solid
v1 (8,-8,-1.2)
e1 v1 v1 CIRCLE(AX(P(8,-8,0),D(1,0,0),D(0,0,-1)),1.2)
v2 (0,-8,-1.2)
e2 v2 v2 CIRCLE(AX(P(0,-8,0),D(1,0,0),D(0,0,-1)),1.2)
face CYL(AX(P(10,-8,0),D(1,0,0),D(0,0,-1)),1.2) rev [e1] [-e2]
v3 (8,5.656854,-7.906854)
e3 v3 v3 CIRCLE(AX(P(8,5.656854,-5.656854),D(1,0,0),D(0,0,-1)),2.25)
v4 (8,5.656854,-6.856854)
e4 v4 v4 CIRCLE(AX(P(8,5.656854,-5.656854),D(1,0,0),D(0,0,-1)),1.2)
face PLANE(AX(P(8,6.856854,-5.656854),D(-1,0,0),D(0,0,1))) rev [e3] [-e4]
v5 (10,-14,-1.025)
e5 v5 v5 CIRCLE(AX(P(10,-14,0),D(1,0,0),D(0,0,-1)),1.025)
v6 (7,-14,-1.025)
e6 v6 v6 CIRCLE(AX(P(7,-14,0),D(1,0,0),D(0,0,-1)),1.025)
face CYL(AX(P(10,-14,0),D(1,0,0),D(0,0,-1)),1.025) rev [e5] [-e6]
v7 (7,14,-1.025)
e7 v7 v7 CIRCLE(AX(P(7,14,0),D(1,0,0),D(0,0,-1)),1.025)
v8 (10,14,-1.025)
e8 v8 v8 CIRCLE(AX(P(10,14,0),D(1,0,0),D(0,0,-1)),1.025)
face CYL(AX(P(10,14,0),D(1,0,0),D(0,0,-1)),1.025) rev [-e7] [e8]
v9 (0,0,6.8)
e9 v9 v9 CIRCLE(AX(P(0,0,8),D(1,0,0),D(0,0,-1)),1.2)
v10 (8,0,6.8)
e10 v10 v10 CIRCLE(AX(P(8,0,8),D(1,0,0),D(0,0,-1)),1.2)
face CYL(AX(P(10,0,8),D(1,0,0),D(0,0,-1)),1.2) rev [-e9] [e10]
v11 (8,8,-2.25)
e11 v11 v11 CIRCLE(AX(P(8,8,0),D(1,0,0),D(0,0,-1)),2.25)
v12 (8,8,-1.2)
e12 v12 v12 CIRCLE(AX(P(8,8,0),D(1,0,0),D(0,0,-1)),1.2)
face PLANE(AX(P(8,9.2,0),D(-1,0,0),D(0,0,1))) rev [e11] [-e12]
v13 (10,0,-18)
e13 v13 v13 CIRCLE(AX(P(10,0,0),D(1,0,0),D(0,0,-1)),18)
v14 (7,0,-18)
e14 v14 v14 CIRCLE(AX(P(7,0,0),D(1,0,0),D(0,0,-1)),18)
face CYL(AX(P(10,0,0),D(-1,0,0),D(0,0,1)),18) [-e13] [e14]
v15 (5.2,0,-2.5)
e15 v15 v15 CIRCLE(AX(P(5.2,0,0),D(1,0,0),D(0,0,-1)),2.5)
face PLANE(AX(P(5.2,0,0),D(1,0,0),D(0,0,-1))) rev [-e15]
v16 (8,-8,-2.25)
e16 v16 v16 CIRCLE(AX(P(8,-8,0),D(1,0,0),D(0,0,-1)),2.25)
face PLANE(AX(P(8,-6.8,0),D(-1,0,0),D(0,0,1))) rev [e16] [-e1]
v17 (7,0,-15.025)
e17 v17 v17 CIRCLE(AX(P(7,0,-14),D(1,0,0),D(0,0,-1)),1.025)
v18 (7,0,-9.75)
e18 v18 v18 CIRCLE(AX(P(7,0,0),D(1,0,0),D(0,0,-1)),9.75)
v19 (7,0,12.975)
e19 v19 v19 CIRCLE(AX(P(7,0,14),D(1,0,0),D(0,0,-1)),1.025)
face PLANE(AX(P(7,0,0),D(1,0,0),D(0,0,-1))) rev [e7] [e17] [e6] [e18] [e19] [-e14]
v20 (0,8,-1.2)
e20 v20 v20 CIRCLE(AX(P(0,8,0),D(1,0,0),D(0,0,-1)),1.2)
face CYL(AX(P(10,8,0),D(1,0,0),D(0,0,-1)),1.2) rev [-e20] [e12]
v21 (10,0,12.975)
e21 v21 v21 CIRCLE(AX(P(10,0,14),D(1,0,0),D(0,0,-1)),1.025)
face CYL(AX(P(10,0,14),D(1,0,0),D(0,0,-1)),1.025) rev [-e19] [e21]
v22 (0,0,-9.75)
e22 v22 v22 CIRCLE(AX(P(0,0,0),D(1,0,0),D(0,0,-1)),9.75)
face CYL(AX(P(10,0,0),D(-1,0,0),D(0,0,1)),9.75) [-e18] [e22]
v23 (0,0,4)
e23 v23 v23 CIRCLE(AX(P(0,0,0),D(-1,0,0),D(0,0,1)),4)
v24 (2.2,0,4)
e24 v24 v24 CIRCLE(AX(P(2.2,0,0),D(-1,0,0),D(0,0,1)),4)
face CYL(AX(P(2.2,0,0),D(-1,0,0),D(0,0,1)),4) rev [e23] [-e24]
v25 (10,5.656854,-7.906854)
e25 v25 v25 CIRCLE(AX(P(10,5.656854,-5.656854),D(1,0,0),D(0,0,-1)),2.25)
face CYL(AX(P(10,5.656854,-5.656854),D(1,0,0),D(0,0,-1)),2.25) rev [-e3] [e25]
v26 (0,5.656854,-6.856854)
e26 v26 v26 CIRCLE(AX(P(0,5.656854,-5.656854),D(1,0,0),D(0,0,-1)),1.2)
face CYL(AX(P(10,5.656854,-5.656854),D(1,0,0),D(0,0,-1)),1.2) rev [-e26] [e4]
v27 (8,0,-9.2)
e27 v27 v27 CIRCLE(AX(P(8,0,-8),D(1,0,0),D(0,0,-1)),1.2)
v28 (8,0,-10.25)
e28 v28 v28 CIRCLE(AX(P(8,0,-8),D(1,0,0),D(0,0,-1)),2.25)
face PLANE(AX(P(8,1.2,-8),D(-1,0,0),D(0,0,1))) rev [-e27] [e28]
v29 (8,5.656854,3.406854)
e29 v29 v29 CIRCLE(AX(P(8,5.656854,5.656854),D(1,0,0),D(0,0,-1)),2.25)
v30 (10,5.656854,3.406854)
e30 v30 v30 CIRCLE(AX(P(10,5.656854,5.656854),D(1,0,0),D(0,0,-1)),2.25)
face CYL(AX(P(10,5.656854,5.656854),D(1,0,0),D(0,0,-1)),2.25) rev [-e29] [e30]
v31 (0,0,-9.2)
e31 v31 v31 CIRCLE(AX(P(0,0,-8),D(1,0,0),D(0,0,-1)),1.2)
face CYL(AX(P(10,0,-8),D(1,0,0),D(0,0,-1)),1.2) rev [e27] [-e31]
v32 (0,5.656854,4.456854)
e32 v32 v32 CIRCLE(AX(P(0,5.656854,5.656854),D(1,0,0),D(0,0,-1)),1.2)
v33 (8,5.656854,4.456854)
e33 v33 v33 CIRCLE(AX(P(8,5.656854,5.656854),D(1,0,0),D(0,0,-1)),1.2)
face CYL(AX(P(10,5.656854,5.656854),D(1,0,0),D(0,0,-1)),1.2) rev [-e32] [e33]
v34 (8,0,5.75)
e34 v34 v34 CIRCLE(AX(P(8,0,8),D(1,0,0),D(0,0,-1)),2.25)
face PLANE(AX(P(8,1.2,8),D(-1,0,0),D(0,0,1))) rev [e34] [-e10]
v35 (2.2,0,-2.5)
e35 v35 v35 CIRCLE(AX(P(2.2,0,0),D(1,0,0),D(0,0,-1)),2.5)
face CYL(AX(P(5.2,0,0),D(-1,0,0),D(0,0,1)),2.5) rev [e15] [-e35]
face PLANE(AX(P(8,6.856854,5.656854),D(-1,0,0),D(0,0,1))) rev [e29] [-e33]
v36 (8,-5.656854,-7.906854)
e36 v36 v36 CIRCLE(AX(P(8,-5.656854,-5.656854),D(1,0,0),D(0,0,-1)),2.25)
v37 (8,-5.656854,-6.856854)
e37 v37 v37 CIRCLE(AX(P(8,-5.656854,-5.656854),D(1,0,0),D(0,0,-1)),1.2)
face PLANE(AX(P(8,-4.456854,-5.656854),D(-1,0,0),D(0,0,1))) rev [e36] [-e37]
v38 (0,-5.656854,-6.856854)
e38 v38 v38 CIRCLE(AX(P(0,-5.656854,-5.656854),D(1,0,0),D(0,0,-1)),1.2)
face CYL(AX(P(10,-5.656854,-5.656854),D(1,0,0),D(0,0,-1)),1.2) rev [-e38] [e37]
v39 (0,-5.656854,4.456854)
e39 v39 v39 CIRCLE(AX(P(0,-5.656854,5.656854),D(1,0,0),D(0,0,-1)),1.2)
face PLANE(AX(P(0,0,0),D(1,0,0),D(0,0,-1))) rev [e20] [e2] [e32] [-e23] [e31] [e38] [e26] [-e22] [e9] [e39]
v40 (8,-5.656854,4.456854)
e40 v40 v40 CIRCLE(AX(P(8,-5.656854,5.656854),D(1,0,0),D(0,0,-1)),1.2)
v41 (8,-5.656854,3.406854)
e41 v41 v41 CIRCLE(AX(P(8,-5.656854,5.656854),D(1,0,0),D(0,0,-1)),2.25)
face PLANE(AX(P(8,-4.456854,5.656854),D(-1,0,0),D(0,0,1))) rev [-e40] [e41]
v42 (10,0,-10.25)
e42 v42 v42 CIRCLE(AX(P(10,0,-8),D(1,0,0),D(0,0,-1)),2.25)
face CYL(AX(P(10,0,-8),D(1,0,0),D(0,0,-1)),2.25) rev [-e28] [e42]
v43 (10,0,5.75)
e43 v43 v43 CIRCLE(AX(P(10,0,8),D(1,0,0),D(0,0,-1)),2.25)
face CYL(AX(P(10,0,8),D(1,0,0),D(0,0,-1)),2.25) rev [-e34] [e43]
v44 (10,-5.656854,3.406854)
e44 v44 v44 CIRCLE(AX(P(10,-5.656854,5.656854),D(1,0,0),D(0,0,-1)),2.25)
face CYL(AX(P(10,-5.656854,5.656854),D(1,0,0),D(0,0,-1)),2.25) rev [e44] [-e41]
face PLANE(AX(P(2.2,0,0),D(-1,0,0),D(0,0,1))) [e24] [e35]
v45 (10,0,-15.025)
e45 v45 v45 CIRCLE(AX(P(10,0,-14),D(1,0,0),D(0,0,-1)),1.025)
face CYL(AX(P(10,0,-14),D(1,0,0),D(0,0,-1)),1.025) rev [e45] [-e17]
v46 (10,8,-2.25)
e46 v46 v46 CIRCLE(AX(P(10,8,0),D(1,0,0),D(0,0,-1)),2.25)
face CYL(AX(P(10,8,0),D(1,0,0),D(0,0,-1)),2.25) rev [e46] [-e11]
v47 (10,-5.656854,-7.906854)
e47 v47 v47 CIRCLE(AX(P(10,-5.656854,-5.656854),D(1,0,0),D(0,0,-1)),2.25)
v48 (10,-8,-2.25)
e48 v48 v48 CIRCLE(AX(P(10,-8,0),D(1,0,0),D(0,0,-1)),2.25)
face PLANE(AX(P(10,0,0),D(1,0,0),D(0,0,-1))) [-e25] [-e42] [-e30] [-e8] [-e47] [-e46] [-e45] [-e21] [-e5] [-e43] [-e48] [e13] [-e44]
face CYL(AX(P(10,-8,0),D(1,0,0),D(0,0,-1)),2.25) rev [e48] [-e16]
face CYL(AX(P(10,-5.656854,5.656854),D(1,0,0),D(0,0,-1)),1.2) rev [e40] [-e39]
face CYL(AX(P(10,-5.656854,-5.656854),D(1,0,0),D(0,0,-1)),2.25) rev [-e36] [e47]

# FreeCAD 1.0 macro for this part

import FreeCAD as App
import Part
import Sketcher

V = App.Vector
Q = App.Units.Quantity

doc = App.newDocument("Part")
body = doc.addObject("PartDesign::Body", "Body")

# Sketch on YZ plane
sketch1 = body.newObject("Sketcher::SketchObject", "Sketch")
sketch1.AttachmentSupport = (doc.getObject("YZ_Plane"), [""])
sketch1.MapMode = "FlatFace"
sketch1.addGeometry(Part.Circle(V(0, 0, 0), V(0, 0, 1), 10), False)
sketch1.addConstraint(Sketcher.Constraint("Coincident", 0, 3, -1, 1))
sketch1.addConstraint(Sketcher.Constraint("Diameter", 0, Q("19.5 mm")))
pad1 = body.newObject("PartDesign::Pad", "Pad")
pad1.Profile = sketch1
pad1.Length = 10

# Sketch on YZ plane
sketch2 = body.newObject("Sketcher::SketchObject", "Sketch001")
sketch2.AttachmentSupport = (doc.getObject("YZ_Plane"), [""])
sketch2.MapMode = "FlatFace"
sketch2.AttachmentOffset = App.Placement(V(0, 0, 7), App.Rotation())
sketch2.addGeometry(Part.Circle(V(0, 0, 0), V(0, 0, 1), 18), False)
sketch2.addConstraint(Sketcher.Constraint("Coincident", 0, 3, -1, 1))
sketch2.addConstraint(Sketcher.Constraint("Diameter", 0, Q("36 mm")))
pad2 = body.newObject("PartDesign::Pad", "Pad001")
pad2.Profile = sketch2
pad2.Length = 3

# Sketch on YZ plane
sketch3 = body.newObject("Sketcher::SketchObject", "Sketch002")
sketch3.AttachmentSupport = (doc.getObject("YZ_Plane"), [""])
sketch3.MapMode = "FlatFace"
sketch3.AttachmentOffset = App.Placement(V(0, 0, 10), App.Rotation())
sketch3.addGeometry(Part.Circle(V(8, 0, 0), V(0, 0, 1), 1.2), False)
sketch3.addGeometry(Part.Circle(V(5.7, -5.7, 0), V(0, 0, 1), 1.2), False)
sketch3.addGeometry(Part.Circle(V(0, -8, 0), V(0, 0, 1), 1.2), False)
sketch3.addGeometry(Part.Circle(V(-5.7, -5.7, 0), V(0, 0, 1), 1.2), False)
sketch3.addGeometry(Part.Circle(V(-8, 0, 0), V(0, 0, 1), 1.2), False)
sketch3.addGeometry(Part.Circle(V(-5.7, 5.7, 0), V(0, 0, 1), 1.2), False)
sketch3.addGeometry(Part.Circle(V(0, 8, 0), V(0, 0, 1), 1.2), False)
sketch3.addGeometry(Part.Circle(V(5.7, 5.7, 0), V(0, 0, 1), 1.2), False)
sketch3.addConstraint(Sketcher.Constraint("Equal", 0, 1))
sketch3.addConstraint(Sketcher.Constraint("Equal", 1, 2))
sketch3.addConstraint(Sketcher.Constraint("Equal", 2, 3))
sketch3.addConstraint(Sketcher.Constraint("Equal", 3, 4))
sketch3.addConstraint(Sketcher.Constraint("Equal", 4, 5))
sketch3.addConstraint(Sketcher.Constraint("Equal", 5, 6))
sketch3.addConstraint(Sketcher.Constraint("Equal", 6, 7))
sketch3.addConstraint(Sketcher.Constraint("Symmetric", 0, 3, 4, 3, -1, 1))
sketch3.addConstraint(Sketcher.Constraint("Symmetric", 1, 3, 5, 3, -1, 1))
sketch3.addConstraint(Sketcher.Constraint("Symmetric", 2, 3, 6, 3, -1, 1))
sketch3.addConstraint(Sketcher.Constraint("Symmetric", 3, 3, 7, 3, -1, 1))
sketch3.addConstraint(Sketcher.Constraint("Symmetric", 1, 3, 3, 3, -2))
sketch3.addConstraint(Sketcher.Constraint("PointOnObject", 0, 3, -1))
sketch3.addConstraint(Sketcher.Constraint("PointOnObject", 2, 3, -2))
sketch3.addConstraint(Sketcher.Constraint("Diameter", 0, Q("2.4 mm")))
sketch3.addConstraint(Sketcher.Constraint("DistanceX", -1, 1, 0, 3, Q("8 mm")))
sketch3.addConstraint(Sketcher.Constraint("DistanceY", 2, 3, -1, 1, Q("8 mm")))
sketch3.addConstraint(Sketcher.Constraint("DistanceX", 3, 3, 1, 3, Q("11.313708 mm")))
sketch3.addConstraint(Sketcher.Constraint("DistanceY", 3, 3, 5, 3, Q("11.313708 mm")))
doc.recompute()
hole = body.newObject("PartDesign::Hole", "Hole")
hole.Profile = sketch3
hole.ThreadType = "None"
hole.Diameter = 2.4
hole.DepthType = "ThroughAll"
hole.HoleCutType = "Counterbore"
hole.HoleCutDiameter = 4.5
hole.HoleCutDepth = 2

# Sketch on YZ plane
sketch4 = body.newObject("Sketcher::SketchObject", "Sketch003")
sketch4.AttachmentSupport = (doc.getObject("YZ_Plane"), [""])
sketch4.MapMode = "FlatFace"
sketch4.addGeometry(Part.Circle(V(0, 0, 0), V(0, 0, 1), 4), False)
sketch4.addConstraint(Sketcher.Constraint("Coincident", 0, 3, -1, 1))
sketch4.addConstraint(Sketcher.Constraint("Diameter", 0, Q("8 mm")))
pocket1 = body.newObject("PartDesign::Pocket", "Pocket")
pocket1.Profile = sketch4
pocket1.Length = 2.2
pocket1.Reversed = True

# Sketch on YZ plane
sketch5 = body.newObject("Sketcher::SketchObject", "Sketch004")
sketch5.AttachmentSupport = (doc.getObject("YZ_Plane"), [""])
sketch5.MapMode = "FlatFace"
sketch5.AttachmentOffset = App.Placement(V(0, 0, 10), App.Rotation())
sketch5.addGeometry(Part.Circle(V(14, 0, 0), V(0, 0, 1), 1), False)
sketch5.addGeometry(Part.Circle(V(0, -14, 0), V(0, 0, 1), 1), False)
sketch5.addGeometry(Part.Circle(V(-14, 0, 0), V(0, 0, 1), 1), False)
sketch5.addGeometry(Part.Circle(V(0, 14, 0), V(0, 0, 1), 1), False)
sketch5.addConstraint(Sketcher.Constraint("Equal", 0, 1))
sketch5.addConstraint(Sketcher.Constraint("Equal", 1, 2))
sketch5.addConstraint(Sketcher.Constraint("Equal", 2, 3))
sketch5.addConstraint(Sketcher.Constraint("Symmetric", 0, 3, 2, 3, -1, 1))
sketch5.addConstraint(Sketcher.Constraint("Symmetric", 1, 3, 3, 3, -1, 1))
sketch5.addConstraint(Sketcher.Constraint("PointOnObject", 0, 3, -1))
sketch5.addConstraint(Sketcher.Constraint("PointOnObject", 1, 3, -2))
sketch5.addConstraint(Sketcher.Constraint("Diameter", 0, Q("2.05 mm")))
sketch5.addConstraint(Sketcher.Constraint("DistanceX", -1, 1, 0, 3, Q("14 mm")))
sketch5.addConstraint(Sketcher.Constraint("DistanceY", 1, 3, -1, 1, Q("14 mm")))
doc.recompute()
hole2 = body.newObject("PartDesign::Hole", "Hole001")
hole2.Profile = sketch5
hole2.ThreadType = "None"
hole2.Diameter = 2.05
hole2.DepthType = "ThroughAll"

# Sketch on YZ plane
sketch6 = body.newObject("Sketcher::SketchObject", "Sketch005")
sketch6.AttachmentSupport = (doc.getObject("YZ_Plane"), [""])
sketch6.MapMode = "FlatFace"
sketch6.AttachmentOffset = App.Placement(V(0, 0, 2.2), App.Rotation())
sketch6.addGeometry(Part.Circle(V(0, 0, 0), V(0, 0, 1), 2.5), False)
sketch6.addConstraint(Sketcher.Constraint("Coincident", 0, 3, -1, 1))
sketch6.addConstraint(Sketcher.Constraint("Diameter", 0, Q("5 mm")))
pocket2 = body.newObject("PartDesign::Pocket", "Pocket001")
pocket2.Profile = sketch6
pocket2.Length = 3
pocket2.Reversed = True

doc.recompute()
